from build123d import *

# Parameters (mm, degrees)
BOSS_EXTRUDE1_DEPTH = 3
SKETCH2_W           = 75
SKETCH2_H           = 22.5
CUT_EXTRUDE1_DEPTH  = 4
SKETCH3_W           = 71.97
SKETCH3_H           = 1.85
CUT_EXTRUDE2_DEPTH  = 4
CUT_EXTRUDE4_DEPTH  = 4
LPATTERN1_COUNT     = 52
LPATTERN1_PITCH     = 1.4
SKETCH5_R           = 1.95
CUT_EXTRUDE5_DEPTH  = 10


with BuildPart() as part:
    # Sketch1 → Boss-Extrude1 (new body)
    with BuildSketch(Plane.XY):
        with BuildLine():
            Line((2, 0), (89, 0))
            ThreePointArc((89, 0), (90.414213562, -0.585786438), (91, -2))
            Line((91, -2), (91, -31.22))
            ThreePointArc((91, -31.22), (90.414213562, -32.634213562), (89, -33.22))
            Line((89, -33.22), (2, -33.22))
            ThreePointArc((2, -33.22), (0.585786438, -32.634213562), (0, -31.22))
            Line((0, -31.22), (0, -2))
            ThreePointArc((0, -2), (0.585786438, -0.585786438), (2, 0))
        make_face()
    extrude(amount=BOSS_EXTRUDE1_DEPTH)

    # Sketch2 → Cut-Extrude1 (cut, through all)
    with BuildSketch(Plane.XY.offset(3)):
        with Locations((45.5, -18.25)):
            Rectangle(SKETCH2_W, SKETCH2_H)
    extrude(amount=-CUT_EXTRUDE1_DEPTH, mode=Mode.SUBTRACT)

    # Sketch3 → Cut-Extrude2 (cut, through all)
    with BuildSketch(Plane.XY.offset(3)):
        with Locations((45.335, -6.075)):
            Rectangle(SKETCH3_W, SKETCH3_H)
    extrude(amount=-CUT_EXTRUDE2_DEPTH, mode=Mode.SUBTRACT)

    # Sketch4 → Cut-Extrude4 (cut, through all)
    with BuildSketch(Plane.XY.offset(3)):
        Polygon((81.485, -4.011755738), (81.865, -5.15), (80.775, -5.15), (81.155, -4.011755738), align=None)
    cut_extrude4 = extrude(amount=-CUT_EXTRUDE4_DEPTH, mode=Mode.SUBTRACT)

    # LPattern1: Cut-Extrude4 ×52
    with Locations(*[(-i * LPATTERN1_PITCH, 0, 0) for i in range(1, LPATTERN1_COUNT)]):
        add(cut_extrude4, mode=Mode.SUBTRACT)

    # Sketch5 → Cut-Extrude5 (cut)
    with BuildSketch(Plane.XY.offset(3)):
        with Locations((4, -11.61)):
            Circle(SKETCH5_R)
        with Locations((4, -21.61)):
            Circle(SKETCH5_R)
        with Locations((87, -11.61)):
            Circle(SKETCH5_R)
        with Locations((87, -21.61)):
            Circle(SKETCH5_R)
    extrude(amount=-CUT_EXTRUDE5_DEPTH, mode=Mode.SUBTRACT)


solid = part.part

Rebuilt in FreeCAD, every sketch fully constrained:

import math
import FreeCAD as App
import Part
import Sketcher
from FreeCAD import Vector
Q = App.Units.Quantity

doc = App.newDocument("Part")
body = doc.addObject("PartDesign::Body", "Body")

# Sketch on XY plane
sketch1 = body.newObject("Sketcher::SketchObject", "Sketch")
sketch1.AttachmentSupport = (doc.getObject("XY_Plane"), [""])
sketch1.MapMode = "FlatFace"
sketch1.addGeometry([
    Part.LineSegment(Vector(89, 0, 0), Vector(2, 0, 0)),  # 0
    Part.ArcOfCircle(Part.Circle(Vector(2, -2, 0), Vector(0, 0, 1), 2), math.radians(90), math.radians(180)),  # 1
    Part.LineSegment(Vector(0, -2, 0), Vector(0, -31.22, 0)),  # 2
    Part.ArcOfCircle(Part.Circle(Vector(2, -31.22, 0), Vector(0, 0, 1), 2), math.radians(-180), math.radians(-90)),  # 3
    Part.LineSegment(Vector(2, -33.22, 0), Vector(89, -33.22, 0)),  # 4
    Part.ArcOfCircle(Part.Circle(Vector(89, -31.22, 0), Vector(0, 0, 1), 2), math.radians(-90), math.radians(0)),  # 5
    Part.LineSegment(Vector(91, -31.22, 0), Vector(91, -2, 0)),  # 6
    Part.ArcOfCircle(Part.Circle(Vector(89, -2, 0), Vector(0, 0, 1), 2), math.radians(0), math.radians(90)),  # 7
], False)
sketch1.addConstraint([
    Sketcher.Constraint("Tangent", 0, 2, 1, 1),
    Sketcher.Constraint("Tangent", 1, 2, 2, 1),
    Sketcher.Constraint("Tangent", 2, 2, 3, 1),
    Sketcher.Constraint("Tangent", 3, 2, 4, 1),
    Sketcher.Constraint("Tangent", 4, 2, 5, 1),
    Sketcher.Constraint("Tangent", 5, 2, 6, 1),
    Sketcher.Constraint("Tangent", 6, 2, 7, 1),
    Sketcher.Constraint("Tangent", 7, 2, 0, 1),
    Sketcher.Constraint("Horizontal", 0),
    Sketcher.Constraint("Vertical", 2),
    Sketcher.Constraint("Horizontal", 4),
    Sketcher.Constraint("Vertical", 6),
    Sketcher.Constraint("Equal", 1, 3),
    Sketcher.Constraint("Equal", 3, 5),
    Sketcher.Constraint("Equal", 5, 7),
    Sketcher.Constraint("PointOnObject", 0, 2, -1),
    Sketcher.Constraint("PointOnObject", 1, 2, -2),
    Sketcher.Constraint("Radius", 1, Q("2 mm")),
    Sketcher.Constraint("DistanceX", 0, 2, 0, 1, Q("87 mm")),
    Sketcher.Constraint("DistanceY", 2, 2, 2, 1, Q("29.22 mm")),
])
pad1 = body.newObject("PartDesign::Pad", "Pad")
pad1.Profile = sketch1
pad1.Length = 3

# Sketch on XY plane
sketch2 = body.newObject("Sketcher::SketchObject", "Sketch001")
sketch2.AttachmentSupport = (doc.getObject("XY_Plane"), [""])
sketch2.MapMode = "FlatFace"
sketch2.AttachmentOffset = App.Placement(Vector(0, 0, 3), App.Rotation())
sketch2.addGeometry([
    Part.LineSegment(Vector(8, -7, 0), Vector(8, -29.5, 0)),
    Part.LineSegment(Vector(8, -29.5, 0), Vector(83, -29.5, 0)),
    Part.LineSegment(Vector(83, -29.5, 0), Vector(83, -7, 0)),
    Part.LineSegment(Vector(83, -7, 0), Vector(8, -7, 0)),
], False)
sketch2.addConstraint([
    Sketcher.Constraint("Coincident", 0, 2, 1, 1),
    Sketcher.Constraint("Coincident", 1, 2, 2, 1),
    Sketcher.Constraint("Coincident", 2, 2, 3, 1),
    Sketcher.Constraint("Coincident", 3, 2, 0, 1),
    Sketcher.Constraint("Vertical", 0),
    Sketcher.Constraint("Horizontal", 1),
    Sketcher.Constraint("Vertical", 2),
    Sketcher.Constraint("Horizontal", 3),
    Sketcher.Constraint("DistanceX", 1, 1, 1, 2, Q("75 mm")),
    Sketcher.Constraint("DistanceY", 0, 2, 0, 1, Q("22.5 mm")),
    Sketcher.Constraint("DistanceX", -1, 1, 0, 2, Q("8 mm")),
    Sketcher.Constraint("DistanceY", 2, 2, -1, 1, Q("7 mm")),
])
pocket1 = body.newObject("PartDesign::Pocket", "Pocket")
pocket1.Profile = sketch2
pocket1.Type = "ThroughAll"

# Sketch on XY plane
sketch3 = body.newObject("Sketcher::SketchObject", "Sketch002")
sketch3.AttachmentSupport = (doc.getObject("XY_Plane"), [""])
sketch3.MapMode = "FlatFace"
sketch3.AttachmentOffset = App.Placement(Vector(0, 0, 3), App.Rotation())
sketch3.addGeometry([
    Part.LineSegment(Vector(9.35, -5.15, 0), Vector(9.35, -7, 0)),
    Part.LineSegment(Vector(9.35, -7, 0), Vector(81.32, -7, 0)),
    Part.LineSegment(Vector(81.32, -7, 0), Vector(81.32, -5.15, 0)),
    Part.LineSegment(Vector(81.32, -5.15, 0), Vector(9.35, -5.15, 0)),
], False)
sketch3.addConstraint([
    Sketcher.Constraint("Coincident", 0, 2, 1, 1),
    Sketcher.Constraint("Coincident", 1, 2, 2, 1),
    Sketcher.Constraint("Coincident", 2, 2, 3, 1),
    Sketcher.Constraint("Coincident", 3, 2, 0, 1),
    Sketcher.Constraint("Vertical", 0),
    Sketcher.Constraint("Horizontal", 1),
    Sketcher.Constraint("Vertical", 2),
    Sketcher.Constraint("Horizontal", 3),
    Sketcher.Constraint("DistanceY", 0, 2, -1, 1, Q("7 mm")),
    Sketcher.Constraint("DistanceX", 1, 1, 1, 2, Q("71.97 mm")),
    Sketcher.Constraint("DistanceY", 0, 2, 0, 1, Q("1.85 mm")),
    Sketcher.Constraint("DistanceX", -1, 1, 0, 2, Q("9.35 mm")),
])
pocket2 = body.newObject("PartDesign::Pocket", "Pocket001")
pocket2.Profile = sketch3
pocket2.Type = "ThroughAll"

# Sketch on XY plane
sketch4 = body.newObject("Sketcher::SketchObject", "Sketch003")
sketch4.AttachmentSupport = (doc.getObject("XY_Plane"), [""])
sketch4.MapMode = "FlatFace"
sketch4.AttachmentOffset = App.Placement(Vector(0, 0, 3), App.Rotation())
sketch4.addGeometry([
    Part.LineSegment(Vector(81.865, -5.15, 0), Vector(81.485, -4.011756, 0)),
    Part.LineSegment(Vector(81.485, -4.011756, 0), Vector(81.155, -4.011756, 0)),
    Part.LineSegment(Vector(81.155, -4.011756, 0), Vector(80.775, -5.15, 0)),
    Part.LineSegment(Vector(80.775, -5.15, 0), Vector(81.865, -5.15, 0)),
], False)
sketch4.addConstraint([
    Sketcher.Constraint("Coincident", 0, 2, 1, 1),
    Sketcher.Constraint("Coincident", 1, 2, 2, 1),
    Sketcher.Constraint("Coincident", 2, 2, 3, 1),
    Sketcher.Constraint("Coincident", 3, 2, 0, 1),
    Sketcher.Constraint("Horizontal", 1),
    Sketcher.Constraint("Horizontal", 3),
    Sketcher.Constraint("Equal", 0, 2),
    Sketcher.Constraint("Distance", 0, Q("1.2 mm")),
    Sketcher.Constraint("DistanceX", 1, 2, 1, 1, Q("0.33 mm")),
    Sketcher.Constraint("DistanceX", 3, 1, 3, 2, Q("1.09 mm")),
    Sketcher.Constraint("DistanceY", 2, 2, -1, 1, Q("5.15 mm")),
    Sketcher.Constraint("DistanceX", -1, 1, 0, 2, Q("81.485 mm")),
])
pocket3 = body.newObject("PartDesign::Pocket", "Pocket002")
pocket3.Profile = sketch4
pocket3.Type = "ThroughAll"
doc.recompute()

linearpattern = body.newObject("PartDesign::LinearPattern", "LinearPattern")
linearpattern.Originals = [pocket3]
linearpattern.Direction = (doc.getObject("X_Axis"), [""])
linearpattern.Mode = "offset"
linearpattern.Offset = 1.4
linearpattern.Occurrences = 52
linearpattern.Reversed = True
body.Tip = linearpattern

# Sketch on XY plane
sketch5 = body.newObject("Sketcher::SketchObject", "Sketch004")
sketch5.AttachmentSupport = (doc.getObject("XY_Plane"), [""])
sketch5.MapMode = "FlatFace"
sketch5.AttachmentOffset = App.Placement(Vector(0, 0, 3), App.Rotation())
sketch5.addGeometry([
    Part.Circle(Vector(4, -11.61, 0), Vector(0, 0, 1), 1.95),
    Part.Circle(Vector(4, -21.61, 0), Vector(0, 0, 1), 1.95),
    Part.Circle(Vector(87, -11.61, 0), Vector(0, 0, 1), 1.95),
    Part.Circle(Vector(87, -21.61, 0), Vector(0, 0, 1), 1.95),
], False)
sketch5.addConstraint([
    Sketcher.Constraint("Equal", 0, 1),
    Sketcher.Constraint("Equal", 1, 2),
    Sketcher.Constraint("Equal", 2, 3),
    Sketcher.Constraint("Horizontal", 0, 3, 2, 3),
    Sketcher.Constraint("Horizontal", 1, 3, 3, 3),
    Sketcher.Constraint("Vertical", 0, 3, 1, 3),
    Sketcher.Constraint("Vertical", 2, 3, 3, 3),
    Sketcher.Constraint("Diameter", 0, Q("3.9 mm")),
    Sketcher.Constraint("DistanceX", -1, 1, 0, 3, Q("4 mm")),
    Sketcher.Constraint("DistanceX", -1, 1, 2, 3, Q("87 mm")),
    Sketcher.Constraint("DistanceY", 1, 3, 0, 3, Q("10 mm")),
    Sketcher.Constraint("DistanceY", 0, 3, -1, 1, Q("11.61 mm")),
])
pocket4 = body.newObject("PartDesign::Pocket", "Pocket003")
pocket4.Profile = sketch5
pocket4.Length = 10

doc.recompute()
